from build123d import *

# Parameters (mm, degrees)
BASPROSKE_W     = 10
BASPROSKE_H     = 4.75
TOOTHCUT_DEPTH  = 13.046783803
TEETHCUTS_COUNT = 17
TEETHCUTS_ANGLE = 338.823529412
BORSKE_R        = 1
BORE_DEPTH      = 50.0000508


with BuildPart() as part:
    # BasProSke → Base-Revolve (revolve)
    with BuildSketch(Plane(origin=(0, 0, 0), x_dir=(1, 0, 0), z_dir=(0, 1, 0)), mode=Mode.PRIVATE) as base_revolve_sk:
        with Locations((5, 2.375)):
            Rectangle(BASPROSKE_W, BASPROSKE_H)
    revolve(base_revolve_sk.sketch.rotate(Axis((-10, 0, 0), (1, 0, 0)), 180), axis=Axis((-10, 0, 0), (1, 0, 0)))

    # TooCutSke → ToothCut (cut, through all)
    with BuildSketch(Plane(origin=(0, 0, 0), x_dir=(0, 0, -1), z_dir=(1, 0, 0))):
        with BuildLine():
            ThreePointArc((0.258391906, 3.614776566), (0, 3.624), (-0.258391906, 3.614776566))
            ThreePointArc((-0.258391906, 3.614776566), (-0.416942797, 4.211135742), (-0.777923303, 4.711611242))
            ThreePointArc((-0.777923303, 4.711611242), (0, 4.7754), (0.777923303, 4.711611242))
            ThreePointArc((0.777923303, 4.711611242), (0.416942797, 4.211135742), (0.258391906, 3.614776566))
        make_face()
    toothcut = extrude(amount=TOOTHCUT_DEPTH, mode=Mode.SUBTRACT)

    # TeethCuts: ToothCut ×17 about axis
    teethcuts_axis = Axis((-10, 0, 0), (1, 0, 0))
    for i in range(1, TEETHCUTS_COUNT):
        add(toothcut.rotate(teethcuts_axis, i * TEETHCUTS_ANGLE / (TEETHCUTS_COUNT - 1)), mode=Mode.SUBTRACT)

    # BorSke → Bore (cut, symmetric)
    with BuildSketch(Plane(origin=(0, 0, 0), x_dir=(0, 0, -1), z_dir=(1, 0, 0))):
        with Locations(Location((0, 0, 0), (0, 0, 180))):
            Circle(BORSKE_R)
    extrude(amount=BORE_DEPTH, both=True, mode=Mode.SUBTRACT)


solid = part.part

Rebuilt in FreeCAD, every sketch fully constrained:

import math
import FreeCAD as App
import Part
import Sketcher
from FreeCAD import Vector

doc = App.newDocument("Part")
body = doc.addObject("PartDesign::Body", "Body")

# Sketch on XZ plane
sketch1 = doc.addObject("Sketcher::SketchObject", "Sketch")
body.addObject(sketch1)
sketch1.AttachmentSupport = (doc.XZ_Plane, [""])
sketch1.MapMode = "FlatFace"
sketch1.addGeometry([
    Part.LineSegment(Vector(0, -4.75, 0), Vector(0, 0, 0)),
    Part.LineSegment(Vector(0, 0, 0), Vector(10, 0, 0)),
    Part.LineSegment(Vector(10, 0, 0), Vector(10, -4.75, 0)),
    Part.LineSegment(Vector(10, -4.75, 0), Vector(0, -4.75, 0)),
], False)
sketch1.addConstraint([
    Sketcher.Constraint("Coincident", 0, 2, 1, 1),
    Sketcher.Constraint("Coincident", 1, 2, 2, 1),
    Sketcher.Constraint("Coincident", 2, 2, 3, 1),
    Sketcher.Constraint("Coincident", 3, 2, 0, 1),
    Sketcher.Constraint("Vertical", 0),
    Sketcher.Constraint("Horizontal", 1),
    Sketcher.Constraint("Vertical", 2),
    Sketcher.Constraint("Horizontal", 3),
    Sketcher.Constraint("Coincident", 0, 2, -1, 1),
    Sketcher.Constraint("DistanceX", 1, 1, 1, 2, 10.0),
    Sketcher.Constraint("DistanceY", 0, 1, 0, 2, 4.75),
])
revolution = doc.addObject("PartDesign::Revolution", "Revolution")
body.addObject(revolution)
revolution.Profile = sketch1
revolution.ReferenceAxis = (sketch1, ["H_Axis"])
revolution.Angle = 360

# Sketch on YZ plane
sketch2 = doc.addObject("Sketcher::SketchObject", "Sketch001")
body.addObject(sketch2)
sketch2.AttachmentSupport = (doc.YZ_Plane, [""])
sketch2.MapMode = "FlatFace"
sketch2.addGeometry([
    Part.ArcOfCircle(Part.Circle(Vector(0, 0, 0), Vector(0, 0, 1), 3.624), math.radians(-4.08867), math.radians(4.08867)),
    Part.ArcOfCircle(Part.Circle(Vector(3.483414, -1.953309, 0), Vector(0, 0, 1), 1.7), math.radians(43.741298), math.radians(85.568216)),
    Part.ArcOfCircle(Part.Circle(Vector(0, 0, 0), Vector(0, 0, 1), 4.7754), math.radians(-9.375392), math.radians(9.375392)),
    Part.ArcOfCircle(Part.Circle(Vector(3.483414, 1.953309, 0), Vector(0, 0, 1), 1.7), math.radians(-85.568216), math.radians(-43.741298)),
], False)
sketch2.addConstraint([
    Sketcher.Constraint("Coincident", 0, 1, 1, 2),
    Sketcher.Constraint("Coincident", 1, 1, 2, 1),
    Sketcher.Constraint("Coincident", 2, 2, 3, 2),
    Sketcher.Constraint("Coincident", 3, 1, 0, 2),
    Sketcher.Constraint("Coincident", 0, 3, -1, 1),
    Sketcher.Constraint("Coincident", 2, 3, -1, 1),
    Sketcher.Constraint("Equal", 1, 3),
    Sketcher.Constraint("Symmetric", 1, 3, 3, 3, -1),
    Sketcher.Constraint("Radius", 1, 1.7),
    Sketcher.Constraint("Radius", 0, 3.624),
    Sketcher.Constraint("Radius", 2, 4.7754),
    Sketcher.Constraint("DistanceY", 0, 1, 3, 3, 2.211701),
    Sketcher.Constraint("DistanceY", 1, 3, -1, 1, 1.953309),
])
pocket1 = doc.addObject("PartDesign::Pocket", "Pocket")
body.addObject(pocket1)
pocket1.Profile = sketch2
pocket1.Type = "ThroughAll"
pocket1.Reversed = True
doc.recompute()

polarpattern = doc.addObject("PartDesign::PolarPattern", "PolarPattern")
body.addObject(polarpattern)
polarpattern.Originals = [pocket1]
polarpattern.Axis = (doc.X_Axis, [""])
polarpattern.Angle = 360
polarpattern.Occurrences = 17
body.Tip = polarpattern

# Sketch on YZ plane
sketch3 = doc.addObject("Sketcher::SketchObject", "Sketch002")
body.addObject(sketch3)
sketch3.AttachmentSupport = (doc.YZ_Plane, [""])
sketch3.MapMode = "FlatFace"
sketch3.addGeometry(Part.Circle(Vector(0, 0, 0), Vector(0, 0, 1), 1), False)
sketch3.addConstraint([
    Sketcher.Constraint("Coincident", 0, 3, -1, 1),
    Sketcher.Constraint("Diameter", 0, 2.0),
])
pocket2 = doc.addObject("PartDesign::Pocket", "Pocket001")
body.addObject(pocket2)
pocket2.Profile = sketch3
pocket2.Length = 100.000102
pocket2.Midplane = True

doc.recompute()
